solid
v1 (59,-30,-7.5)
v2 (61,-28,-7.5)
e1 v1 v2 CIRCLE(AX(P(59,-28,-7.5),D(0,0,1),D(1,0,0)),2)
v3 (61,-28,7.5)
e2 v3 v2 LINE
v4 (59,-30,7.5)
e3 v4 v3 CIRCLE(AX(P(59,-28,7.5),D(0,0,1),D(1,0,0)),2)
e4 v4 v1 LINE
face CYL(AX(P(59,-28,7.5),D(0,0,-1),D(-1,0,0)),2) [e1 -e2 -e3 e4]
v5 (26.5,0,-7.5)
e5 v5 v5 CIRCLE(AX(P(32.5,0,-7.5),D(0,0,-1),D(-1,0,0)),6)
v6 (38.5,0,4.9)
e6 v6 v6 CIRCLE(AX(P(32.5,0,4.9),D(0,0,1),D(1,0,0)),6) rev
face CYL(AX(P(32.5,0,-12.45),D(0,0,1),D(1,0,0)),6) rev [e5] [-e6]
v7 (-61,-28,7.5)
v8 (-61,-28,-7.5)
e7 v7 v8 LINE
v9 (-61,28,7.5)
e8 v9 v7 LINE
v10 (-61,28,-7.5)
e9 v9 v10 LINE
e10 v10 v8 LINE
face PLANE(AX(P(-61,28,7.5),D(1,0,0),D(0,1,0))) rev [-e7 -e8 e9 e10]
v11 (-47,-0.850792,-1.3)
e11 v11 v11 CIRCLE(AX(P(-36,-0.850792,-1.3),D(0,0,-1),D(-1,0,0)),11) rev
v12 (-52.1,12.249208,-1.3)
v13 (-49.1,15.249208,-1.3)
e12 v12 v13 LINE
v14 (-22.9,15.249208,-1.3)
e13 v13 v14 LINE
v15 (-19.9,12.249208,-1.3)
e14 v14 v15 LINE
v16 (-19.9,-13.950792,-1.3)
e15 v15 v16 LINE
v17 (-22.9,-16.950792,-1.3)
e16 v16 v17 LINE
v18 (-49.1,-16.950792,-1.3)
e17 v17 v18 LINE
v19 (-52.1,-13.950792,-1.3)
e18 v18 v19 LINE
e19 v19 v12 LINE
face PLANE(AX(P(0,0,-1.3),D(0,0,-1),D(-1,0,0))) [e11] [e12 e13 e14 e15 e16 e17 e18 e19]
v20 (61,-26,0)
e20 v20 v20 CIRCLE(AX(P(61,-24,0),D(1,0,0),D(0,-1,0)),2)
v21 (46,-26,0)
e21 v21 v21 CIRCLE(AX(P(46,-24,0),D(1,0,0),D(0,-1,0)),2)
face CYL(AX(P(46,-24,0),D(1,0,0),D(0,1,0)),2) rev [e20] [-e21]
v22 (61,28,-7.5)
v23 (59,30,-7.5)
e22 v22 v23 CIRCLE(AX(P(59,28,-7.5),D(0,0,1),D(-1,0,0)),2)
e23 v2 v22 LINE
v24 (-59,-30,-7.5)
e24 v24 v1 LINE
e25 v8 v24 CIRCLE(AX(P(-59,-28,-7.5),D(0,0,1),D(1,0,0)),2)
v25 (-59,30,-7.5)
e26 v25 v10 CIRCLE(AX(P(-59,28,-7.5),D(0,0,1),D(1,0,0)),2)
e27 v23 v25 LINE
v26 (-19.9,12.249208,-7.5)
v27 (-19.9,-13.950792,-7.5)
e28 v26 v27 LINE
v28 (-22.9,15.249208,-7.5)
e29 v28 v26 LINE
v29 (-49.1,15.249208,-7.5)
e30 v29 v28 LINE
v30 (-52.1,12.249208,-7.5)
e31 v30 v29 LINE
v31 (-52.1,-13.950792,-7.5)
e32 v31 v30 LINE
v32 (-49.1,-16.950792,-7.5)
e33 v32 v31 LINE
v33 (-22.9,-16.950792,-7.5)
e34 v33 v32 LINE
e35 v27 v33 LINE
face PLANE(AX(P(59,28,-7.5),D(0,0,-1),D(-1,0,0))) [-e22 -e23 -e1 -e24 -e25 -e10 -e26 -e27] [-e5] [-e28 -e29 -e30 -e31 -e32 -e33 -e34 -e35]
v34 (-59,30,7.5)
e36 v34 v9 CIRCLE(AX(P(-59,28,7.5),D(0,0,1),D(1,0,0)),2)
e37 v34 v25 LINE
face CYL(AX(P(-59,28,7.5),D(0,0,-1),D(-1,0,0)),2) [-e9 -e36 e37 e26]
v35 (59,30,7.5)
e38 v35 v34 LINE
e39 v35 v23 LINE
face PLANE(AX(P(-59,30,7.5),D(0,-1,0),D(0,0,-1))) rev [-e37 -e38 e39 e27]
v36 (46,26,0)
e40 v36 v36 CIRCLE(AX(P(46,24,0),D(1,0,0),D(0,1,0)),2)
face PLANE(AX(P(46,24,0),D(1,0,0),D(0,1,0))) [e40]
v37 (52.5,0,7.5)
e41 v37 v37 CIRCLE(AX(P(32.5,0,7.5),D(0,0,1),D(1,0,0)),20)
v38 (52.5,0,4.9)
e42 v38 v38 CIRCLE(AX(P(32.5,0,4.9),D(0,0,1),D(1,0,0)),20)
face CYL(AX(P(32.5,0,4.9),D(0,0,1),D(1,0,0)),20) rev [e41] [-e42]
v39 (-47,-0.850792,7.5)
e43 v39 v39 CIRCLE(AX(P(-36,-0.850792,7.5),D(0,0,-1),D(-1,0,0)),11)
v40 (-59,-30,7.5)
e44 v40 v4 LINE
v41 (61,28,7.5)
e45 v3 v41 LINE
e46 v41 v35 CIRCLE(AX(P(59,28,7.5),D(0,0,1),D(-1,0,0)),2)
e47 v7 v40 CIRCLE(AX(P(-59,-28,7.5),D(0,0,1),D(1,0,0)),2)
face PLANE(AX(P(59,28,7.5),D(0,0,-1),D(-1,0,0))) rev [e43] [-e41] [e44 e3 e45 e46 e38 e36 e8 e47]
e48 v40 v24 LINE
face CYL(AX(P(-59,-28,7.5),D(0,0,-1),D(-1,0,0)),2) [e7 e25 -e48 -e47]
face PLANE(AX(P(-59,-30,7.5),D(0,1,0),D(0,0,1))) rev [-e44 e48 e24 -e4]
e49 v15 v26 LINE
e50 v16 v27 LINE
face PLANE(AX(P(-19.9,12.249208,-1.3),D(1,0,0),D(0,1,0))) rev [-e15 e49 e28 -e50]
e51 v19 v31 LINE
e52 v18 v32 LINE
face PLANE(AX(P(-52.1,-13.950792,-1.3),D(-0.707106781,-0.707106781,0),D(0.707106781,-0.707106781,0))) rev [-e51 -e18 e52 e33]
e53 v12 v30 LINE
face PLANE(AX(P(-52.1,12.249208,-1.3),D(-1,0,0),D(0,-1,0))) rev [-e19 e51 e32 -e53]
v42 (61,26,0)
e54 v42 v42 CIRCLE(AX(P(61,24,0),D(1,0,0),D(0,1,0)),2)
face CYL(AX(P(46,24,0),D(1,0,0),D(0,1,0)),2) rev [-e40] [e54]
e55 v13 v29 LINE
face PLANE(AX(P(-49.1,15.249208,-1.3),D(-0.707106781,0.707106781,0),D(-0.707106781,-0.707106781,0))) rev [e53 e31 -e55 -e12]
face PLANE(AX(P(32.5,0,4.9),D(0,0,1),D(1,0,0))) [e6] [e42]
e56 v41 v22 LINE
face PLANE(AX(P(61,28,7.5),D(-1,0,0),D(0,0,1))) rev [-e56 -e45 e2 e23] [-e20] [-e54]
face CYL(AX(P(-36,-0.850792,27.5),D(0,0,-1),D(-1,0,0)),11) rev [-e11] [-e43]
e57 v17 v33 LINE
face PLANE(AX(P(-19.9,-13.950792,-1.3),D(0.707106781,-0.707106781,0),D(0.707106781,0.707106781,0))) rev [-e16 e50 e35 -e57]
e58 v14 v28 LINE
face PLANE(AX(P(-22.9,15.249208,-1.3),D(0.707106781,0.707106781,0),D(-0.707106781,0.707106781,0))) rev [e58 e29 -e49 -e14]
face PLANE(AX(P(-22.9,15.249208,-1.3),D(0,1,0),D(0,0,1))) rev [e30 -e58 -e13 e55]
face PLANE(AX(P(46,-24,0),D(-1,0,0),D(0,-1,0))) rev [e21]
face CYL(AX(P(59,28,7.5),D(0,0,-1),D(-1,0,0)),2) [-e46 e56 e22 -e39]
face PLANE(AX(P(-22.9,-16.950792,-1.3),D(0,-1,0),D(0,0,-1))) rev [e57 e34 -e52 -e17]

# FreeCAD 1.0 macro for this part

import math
import FreeCAD as App
import Part
import Sketcher


def add_polygon(sketch, points):
    """Adds a closed chain of lines whose ends are joined by coincident constraints."""
    first, n = sketch.GeometryCount, len(points)
    for a, b in zip(points, points[1:] + points[:1]):
        sketch.addGeometry(Part.LineSegment(App.Vector(*a, 0), App.Vector(*b, 0)), False)
    for i in range(n):
        sketch.addConstraint(Sketcher.Constraint("Coincident", first + i, 2, first + (i + 1) % n, 1))

doc = App.newDocument("Part")
body = doc.addObject("PartDesign::Body", "Body")

sketch1 = doc.addObject("Sketcher::SketchObject", "Sketch")
body.addObject(sketch1)
sketch1.AttachmentSupport = (doc.XY_Plane, [""])
sketch1.MapMode = "FlatFace"
sketch1.addGeometry([
    Part.LineSegment(App.Vector(59, 30, 0), App.Vector(-59, 30, 0)),
    Part.ArcOfCircle(Part.Circle(App.Vector(-59, 28, 0), App.Vector(0, 0, 1), 2), math.radians(90), math.radians(180)),
    Part.LineSegment(App.Vector(-61, 28, 0), App.Vector(-61, -28, 0)),
    Part.ArcOfCircle(Part.Circle(App.Vector(-59, -28, 0), App.Vector(0, 0, 1), 2), math.radians(-180), math.radians(-90)),
    Part.LineSegment(App.Vector(-59, -30, 0), App.Vector(59, -30, 0)),
    Part.ArcOfCircle(Part.Circle(App.Vector(59, -28, 0), App.Vector(0, 0, 1), 2), math.radians(-90), math.radians(0)),
    Part.LineSegment(App.Vector(61, -28, 0), App.Vector(61, 28, 0)),
    Part.ArcOfCircle(Part.Circle(App.Vector(59, 28, 0), App.Vector(0, 0, 1), 2), math.radians(0), math.radians(90)),
], False)
sketch1.addConstraint([
    Sketcher.Constraint("Tangent", 0, 2, 1, 1),
    Sketcher.Constraint("Tangent", 1, 2, 2, 1),
    Sketcher.Constraint("Tangent", 2, 2, 3, 1),
    Sketcher.Constraint("Tangent", 3, 2, 4, 1),
    Sketcher.Constraint("Tangent", 4, 2, 5, 1),
    Sketcher.Constraint("Tangent", 5, 2, 6, 1),
    Sketcher.Constraint("Tangent", 6, 2, 7, 1),
    Sketcher.Constraint("Tangent", 7, 2, 0, 1),
    Sketcher.Constraint("Horizontal", 0),
    Sketcher.Constraint("Vertical", 2),
    Sketcher.Constraint("Horizontal", 4),
    Sketcher.Constraint("Vertical", 6),
    Sketcher.Constraint("Equal", 1, 3),
    Sketcher.Constraint("Equal", 3, 5),
    Sketcher.Constraint("Equal", 5, 7),
    Sketcher.Constraint("Symmetric", 1, 3, 5, 3, -1, 1),
    Sketcher.Constraint("Radius", 1, 2.0),
    Sketcher.Constraint("DistanceX", 0, 2, 0, 1, 118.0),
    Sketcher.Constraint("DistanceY", 2, 2, 2, 1, 56.0),
])
pad1 = doc.addObject("PartDesign::Pad", "Pad")
body.addObject(pad1)
pad1.Profile = sketch1
pad1.Length = 15
pad1.Midplane = True

sketch2 = doc.addObject("Sketcher::SketchObject", "Sketch001")
body.addObject(sketch2)
sketch2.AttachmentSupport = (doc.YZ_Plane, [""])
sketch2.MapMode = "FlatFace"
sketch2.AttachmentOffset = App.Placement(App.Vector(0, 0, 61), App.Rotation())
sketch2.addGeometry([
    Part.Circle(App.Vector(24, 0, 0), App.Vector(0, 0, 1), 2),
    Part.Circle(App.Vector(-24, 0, 0), App.Vector(0, 0, 1), 2),
], False)
sketch2.addConstraint([
    Sketcher.Constraint("Equal", 0, 1),
    Sketcher.Constraint("Symmetric", 0, 3, 1, 3, -1, 1),
    Sketcher.Constraint("PointOnObject", 0, 3, -1),
    Sketcher.Constraint("Diameter", 0, 4.0),
    Sketcher.Constraint("DistanceX", -1, 1, 0, 3, 24.0),
])
pocket1 = doc.addObject("PartDesign::Pocket", "Pocket")
body.addObject(pocket1)
pocket1.Profile = sketch2
pocket1.Length = 15

sketch3 = doc.addObject("Sketcher::SketchObject", "Sketch002")
body.addObject(sketch3)
sketch3.AttachmentSupport = (doc.XY_Plane, [""])
sketch3.MapMode = "FlatFace"
sketch3.AttachmentOffset = App.Placement(App.Vector(0, 0, -7.5), App.Rotation())
sketch3.addGeometry(Part.Circle(App.Vector(-36, -1, 0), App.Vector(0, 0, 1), 11), False)
sketch3.addConstraint([
    Sketcher.Constraint("Diameter", 0, 22.0),
    Sketcher.Constraint("DistanceX", 0, 3, -1, 1, 36.0),
    Sketcher.Constraint("DistanceY", 0, 3, -1, 1, 0.850792),
])
pocket2 = doc.addObject("PartDesign::Pocket", "Pocket001")
body.addObject(pocket2)
pocket2.Profile = sketch3
pocket2.Length = 35
pocket2.Reversed = True

sketch4 = doc.addObject("Sketcher::SketchObject", "Sketch003")
body.addObject(sketch4)
sketch4.AttachmentSupport = (doc.XY_Plane, [""])
sketch4.MapMode = "FlatFace"
sketch4.AttachmentOffset = App.Placement(App.Vector(0, 0, 7.5), App.Rotation())
sketch4.addGeometry(Part.Circle(App.Vector(32, 0, 0), App.Vector(0, 0, 1), 6), False)
sketch4.addConstraint([
    Sketcher.Constraint("PointOnObject", 0, 3, -1),
    Sketcher.Constraint("Diameter", 0, 12.0),
    Sketcher.Constraint("DistanceX", -1, 1, 0, 3, 32.5),
])
pocket3 = doc.addObject("PartDesign::Pocket", "Pocket002")
body.addObject(pocket3)
pocket3.Profile = sketch4
pocket3.Length = 19.95

sketch5 = doc.addObject("Sketcher::SketchObject", "Sketch004")
body.addObject(sketch5)
sketch5.AttachmentSupport = (doc.XY_Plane, [""])
sketch5.MapMode = "FlatFace"
sketch5.AttachmentOffset = App.Placement(App.Vector(0, 0, -7.5), App.Rotation())
add_polygon(sketch5, [(-52.1, 12.2), (-49.1, 15.2), (-22.9, 15.2), (-19.9, 12.2), (-19.9, -14), (-22.9, -17), (-49.1, -17), (-52.1, -14)])
sketch5.addConstraint([
    Sketcher.Constraint("Horizontal", 1),
    Sketcher.Constraint("Vertical", 3),
    Sketcher.Constraint("Horizontal", 5),
    Sketcher.Constraint("Vertical", 7),
    Sketcher.Constraint("Perpendicular", 0, 2),
    Sketcher.Constraint("Perpendicular", 2, 4),
    Sketcher.Constraint("Perpendicular", 4, 6),
    Sketcher.Constraint("Horizontal", 3, 2, 6, 2),
    Sketcher.Constraint("Horizontal", 2, 2, 7, 2),
    Sketcher.Constraint("Vertical", 1, 2, 4, 2),
    Sketcher.Constraint("Vertical", 0, 2, 5, 2),
    Sketcher.Constraint("Equal", 5, 3),
    Sketcher.Constraint("DistanceX", 1, 1, 1, 2, 26.2),
    Sketcher.Constraint("DistanceX", 1, 2, 2, 2, 3.0),
    Sketcher.Constraint("DistanceX", 0, 2, -1, 1, 49.1),
    Sketcher.Constraint("DistanceY", -1, 1, 0, 2, 15.249208),
])
pocket4 = doc.addObject("PartDesign::Pocket", "Pocket003")
body.addObject(pocket4)
pocket4.Profile = sketch5
pocket4.Length = 6.2
pocket4.Reversed = True

sketch6 = doc.addObject("Sketcher::SketchObject", "Sketch005")
body.addObject(sketch6)
sketch6.AttachmentSupport = (doc.XY_Plane, [""])
sketch6.MapMode = "FlatFace"
sketch6.AttachmentOffset = App.Placement(App.Vector(0, 0, 7.5), App.Rotation())
sketch6.addGeometry(Part.Circle(App.Vector(32, 0, 0), App.Vector(0, 0, 1), 20), False)
sketch6.addConstraint([
    Sketcher.Constraint("PointOnObject", 0, 3, -1),
    Sketcher.Constraint("Diameter", 0, 40.0),
    Sketcher.Constraint("DistanceX", -1, 1, 0, 3, 32.5),
])
pocket5 = doc.addObject("PartDesign::Pocket", "Pocket004")
body.addObject(pocket5)
pocket5.Profile = sketch6
pocket5.Length = 2.6

doc.recompute()
